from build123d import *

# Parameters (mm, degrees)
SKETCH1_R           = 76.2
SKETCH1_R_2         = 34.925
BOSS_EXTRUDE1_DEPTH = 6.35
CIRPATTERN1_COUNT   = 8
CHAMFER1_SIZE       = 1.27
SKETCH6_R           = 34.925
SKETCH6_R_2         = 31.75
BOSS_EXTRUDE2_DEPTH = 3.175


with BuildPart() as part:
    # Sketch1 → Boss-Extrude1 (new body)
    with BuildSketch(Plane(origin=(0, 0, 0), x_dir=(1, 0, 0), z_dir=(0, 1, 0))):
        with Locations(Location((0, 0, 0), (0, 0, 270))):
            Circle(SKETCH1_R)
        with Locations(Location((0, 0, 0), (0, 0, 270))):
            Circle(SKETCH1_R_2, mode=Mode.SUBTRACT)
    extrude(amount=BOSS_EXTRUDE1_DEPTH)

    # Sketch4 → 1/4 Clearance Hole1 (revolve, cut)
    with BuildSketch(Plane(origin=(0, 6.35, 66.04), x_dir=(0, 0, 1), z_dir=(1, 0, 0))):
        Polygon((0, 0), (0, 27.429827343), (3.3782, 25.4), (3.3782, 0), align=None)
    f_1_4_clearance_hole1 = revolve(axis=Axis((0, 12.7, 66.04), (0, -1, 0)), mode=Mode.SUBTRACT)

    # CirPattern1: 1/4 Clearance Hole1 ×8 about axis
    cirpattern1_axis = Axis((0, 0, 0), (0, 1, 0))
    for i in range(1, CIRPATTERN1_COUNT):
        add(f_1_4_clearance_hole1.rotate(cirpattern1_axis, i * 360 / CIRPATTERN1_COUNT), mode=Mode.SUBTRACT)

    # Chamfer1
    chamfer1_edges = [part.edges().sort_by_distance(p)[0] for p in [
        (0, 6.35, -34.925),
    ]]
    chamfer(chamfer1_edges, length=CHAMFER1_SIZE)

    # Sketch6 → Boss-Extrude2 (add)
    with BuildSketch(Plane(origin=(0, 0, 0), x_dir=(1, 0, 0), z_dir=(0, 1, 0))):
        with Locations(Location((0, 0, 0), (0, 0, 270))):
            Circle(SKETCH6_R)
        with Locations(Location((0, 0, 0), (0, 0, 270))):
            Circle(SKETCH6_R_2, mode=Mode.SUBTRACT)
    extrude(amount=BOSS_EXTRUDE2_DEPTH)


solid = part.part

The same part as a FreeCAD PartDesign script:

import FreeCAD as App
import Part
import Sketcher

V = App.Vector
Q = App.Units.Quantity


def edges_at(feature, points):
    """Names of the edges that pass closest to the given points."""
    edges = feature.Shape.Edges
    near = lambda p: min(range(len(edges)), key=lambda i: edges[i].distToShape(Part.Vertex(*p))[0])
    return sorted({f"Edge{near(p) + 1}" for p in points})

doc = App.newDocument("Part")
body = doc.addObject("PartDesign::Body", "Body")

# Sketch on XZ plane
sketch1 = body.newObject("Sketcher::SketchObject", "Sketch")
sketch1.AttachmentSupport = (doc.getObject("XZ_Plane"), [""])
sketch1.MapMode = "FlatFace"
sketch1.addGeometry(Part.Circle(V(0, 0, 0), V(0, 0, 1), 76), False)
sketch1.addGeometry(Part.Circle(V(0, 0, 0), V(0, 0, 1), 35), False)
sketch1.addConstraint(Sketcher.Constraint("Coincident", 0, 3, -1, 1))
sketch1.addConstraint(Sketcher.Constraint("Coincident", 1, 3, -1, 1))
sketch1.addConstraint(Sketcher.Constraint("Diameter", 0, Q("6 in")))
sketch1.addConstraint(Sketcher.Constraint("Diameter", 1, Q("2.75 in")))
pad1 = body.newObject("PartDesign::Pad", "Pad")
pad1.Profile = sketch1
pad1.Length = Q("0.25 in")
pad1.Reversed = True

# Sketch on YZ plane
sketch2 = body.newObject("Sketcher::SketchObject", "Sketch001")
sketch2.AttachmentSupport = (doc.getObject("YZ_Plane"), [""])
sketch2.MapMode = "FlatFace"
sketch2.addGeometry(Part.LineSegment(V(-21.1, 66, 0), V(6.3, 66, 0)), False)
sketch2.addGeometry(Part.LineSegment(V(6.3, 66, 0), V(6.3, 69.4, 0)), False)
sketch2.addGeometry(Part.LineSegment(V(6.3, 69.4, 0), V(-19.1, 69.4, 0)), False)
sketch2.addGeometry(Part.LineSegment(V(-19.1, 69.4, 0), V(-21.1, 66, 0)), False)
sketch2.addGeometry(Part.LineSegment(V(6.3, 66, 0), V(-21.1, 66, 0)), True)  # axis
sketch2.addConstraint(Sketcher.Constraint("Coincident", 0, 2, 1, 1))
sketch2.addConstraint(Sketcher.Constraint("Coincident", 1, 2, 2, 1))
sketch2.addConstraint(Sketcher.Constraint("Coincident", 2, 2, 3, 1))
sketch2.addConstraint(Sketcher.Constraint("Coincident", 3, 2, 0, 1))
sketch2.addConstraint(Sketcher.Constraint("Horizontal", 0))
sketch2.addConstraint(Sketcher.Constraint("Vertical", 1))
sketch2.addConstraint(Sketcher.Constraint("Horizontal", 2))
sketch2.addConstraint(Sketcher.Constraint("Horizontal", 4))
sketch2.addConstraint(Sketcher.Constraint("Coincident", 4, 1, 0, 2))
sketch2.addConstraint(Sketcher.Constraint("Equal", 0, 4))
sketch2.addConstraint(Sketcher.Constraint("DistanceX", 2, 2, 2, 1, Q("1 in")))
sketch2.addConstraint(Sketcher.Constraint("Angle", 3, Q("-121 deg")))
sketch2.addConstraint(Sketcher.Constraint("DistanceY", -1, 1, 0, 2, Q("2.6 in")))
sketch2.addConstraint(Sketcher.Constraint("DistanceY", 1, 1, 1, 2, Q("0.133 in")))
sketch2.addConstraint(Sketcher.Constraint("DistanceX", -1, 1, 0, 2, Q("0.25 in")))
groove = body.newObject("PartDesign::Groove", "Groove")
groove.Profile = sketch2
groove.ReferenceAxis = (sketch2, ["Axis0"])
groove.Angle = 360
doc.recompute()

polarpattern = body.newObject("PartDesign::PolarPattern", "PolarPattern")
polarpattern.Originals = [groove]
polarpattern.Axis = (doc.getObject("Y_Axis"), [""])
polarpattern.Angle = 360
polarpattern.Occurrences = 8
body.Tip = polarpattern
doc.recompute()

chamfer = body.newObject("PartDesign::Chamfer", "Chamfer")
chamfer.Base = (polarpattern, edges_at(polarpattern, [(0, 6.35, -34.925)]))
chamfer.Size = Q("0.05 in")

# Sketch on XZ plane
sketch3 = body.newObject("Sketcher::SketchObject", "Sketch002")
sketch3.AttachmentSupport = (doc.getObject("XZ_Plane"), [""])
sketch3.MapMode = "FlatFace"
sketch3.addGeometry(Part.Circle(V(0, 0, 0), V(0, 0, 1), 35), False)
sketch3.addGeometry(Part.Circle(V(0, 0, 0), V(0, 0, 1), 32), False)
sketch3.addConstraint(Sketcher.Constraint("Coincident", 0, 3, -1, 1))
sketch3.addConstraint(Sketcher.Constraint("Coincident", 1, 3, -1, 1))
sketch3.addConstraint(Sketcher.Constraint("Diameter", 1, Q("2.5 in")))
sketch3.addConstraint(Sketcher.Constraint("Diameter", 0, Q("2.75 in")))
pad2 = body.newObject("PartDesign::Pad", "Pad001")
pad2.Profile = sketch3
pad2.Length = Q("0.125 in")
pad2.Reversed = True

doc.recompute()
